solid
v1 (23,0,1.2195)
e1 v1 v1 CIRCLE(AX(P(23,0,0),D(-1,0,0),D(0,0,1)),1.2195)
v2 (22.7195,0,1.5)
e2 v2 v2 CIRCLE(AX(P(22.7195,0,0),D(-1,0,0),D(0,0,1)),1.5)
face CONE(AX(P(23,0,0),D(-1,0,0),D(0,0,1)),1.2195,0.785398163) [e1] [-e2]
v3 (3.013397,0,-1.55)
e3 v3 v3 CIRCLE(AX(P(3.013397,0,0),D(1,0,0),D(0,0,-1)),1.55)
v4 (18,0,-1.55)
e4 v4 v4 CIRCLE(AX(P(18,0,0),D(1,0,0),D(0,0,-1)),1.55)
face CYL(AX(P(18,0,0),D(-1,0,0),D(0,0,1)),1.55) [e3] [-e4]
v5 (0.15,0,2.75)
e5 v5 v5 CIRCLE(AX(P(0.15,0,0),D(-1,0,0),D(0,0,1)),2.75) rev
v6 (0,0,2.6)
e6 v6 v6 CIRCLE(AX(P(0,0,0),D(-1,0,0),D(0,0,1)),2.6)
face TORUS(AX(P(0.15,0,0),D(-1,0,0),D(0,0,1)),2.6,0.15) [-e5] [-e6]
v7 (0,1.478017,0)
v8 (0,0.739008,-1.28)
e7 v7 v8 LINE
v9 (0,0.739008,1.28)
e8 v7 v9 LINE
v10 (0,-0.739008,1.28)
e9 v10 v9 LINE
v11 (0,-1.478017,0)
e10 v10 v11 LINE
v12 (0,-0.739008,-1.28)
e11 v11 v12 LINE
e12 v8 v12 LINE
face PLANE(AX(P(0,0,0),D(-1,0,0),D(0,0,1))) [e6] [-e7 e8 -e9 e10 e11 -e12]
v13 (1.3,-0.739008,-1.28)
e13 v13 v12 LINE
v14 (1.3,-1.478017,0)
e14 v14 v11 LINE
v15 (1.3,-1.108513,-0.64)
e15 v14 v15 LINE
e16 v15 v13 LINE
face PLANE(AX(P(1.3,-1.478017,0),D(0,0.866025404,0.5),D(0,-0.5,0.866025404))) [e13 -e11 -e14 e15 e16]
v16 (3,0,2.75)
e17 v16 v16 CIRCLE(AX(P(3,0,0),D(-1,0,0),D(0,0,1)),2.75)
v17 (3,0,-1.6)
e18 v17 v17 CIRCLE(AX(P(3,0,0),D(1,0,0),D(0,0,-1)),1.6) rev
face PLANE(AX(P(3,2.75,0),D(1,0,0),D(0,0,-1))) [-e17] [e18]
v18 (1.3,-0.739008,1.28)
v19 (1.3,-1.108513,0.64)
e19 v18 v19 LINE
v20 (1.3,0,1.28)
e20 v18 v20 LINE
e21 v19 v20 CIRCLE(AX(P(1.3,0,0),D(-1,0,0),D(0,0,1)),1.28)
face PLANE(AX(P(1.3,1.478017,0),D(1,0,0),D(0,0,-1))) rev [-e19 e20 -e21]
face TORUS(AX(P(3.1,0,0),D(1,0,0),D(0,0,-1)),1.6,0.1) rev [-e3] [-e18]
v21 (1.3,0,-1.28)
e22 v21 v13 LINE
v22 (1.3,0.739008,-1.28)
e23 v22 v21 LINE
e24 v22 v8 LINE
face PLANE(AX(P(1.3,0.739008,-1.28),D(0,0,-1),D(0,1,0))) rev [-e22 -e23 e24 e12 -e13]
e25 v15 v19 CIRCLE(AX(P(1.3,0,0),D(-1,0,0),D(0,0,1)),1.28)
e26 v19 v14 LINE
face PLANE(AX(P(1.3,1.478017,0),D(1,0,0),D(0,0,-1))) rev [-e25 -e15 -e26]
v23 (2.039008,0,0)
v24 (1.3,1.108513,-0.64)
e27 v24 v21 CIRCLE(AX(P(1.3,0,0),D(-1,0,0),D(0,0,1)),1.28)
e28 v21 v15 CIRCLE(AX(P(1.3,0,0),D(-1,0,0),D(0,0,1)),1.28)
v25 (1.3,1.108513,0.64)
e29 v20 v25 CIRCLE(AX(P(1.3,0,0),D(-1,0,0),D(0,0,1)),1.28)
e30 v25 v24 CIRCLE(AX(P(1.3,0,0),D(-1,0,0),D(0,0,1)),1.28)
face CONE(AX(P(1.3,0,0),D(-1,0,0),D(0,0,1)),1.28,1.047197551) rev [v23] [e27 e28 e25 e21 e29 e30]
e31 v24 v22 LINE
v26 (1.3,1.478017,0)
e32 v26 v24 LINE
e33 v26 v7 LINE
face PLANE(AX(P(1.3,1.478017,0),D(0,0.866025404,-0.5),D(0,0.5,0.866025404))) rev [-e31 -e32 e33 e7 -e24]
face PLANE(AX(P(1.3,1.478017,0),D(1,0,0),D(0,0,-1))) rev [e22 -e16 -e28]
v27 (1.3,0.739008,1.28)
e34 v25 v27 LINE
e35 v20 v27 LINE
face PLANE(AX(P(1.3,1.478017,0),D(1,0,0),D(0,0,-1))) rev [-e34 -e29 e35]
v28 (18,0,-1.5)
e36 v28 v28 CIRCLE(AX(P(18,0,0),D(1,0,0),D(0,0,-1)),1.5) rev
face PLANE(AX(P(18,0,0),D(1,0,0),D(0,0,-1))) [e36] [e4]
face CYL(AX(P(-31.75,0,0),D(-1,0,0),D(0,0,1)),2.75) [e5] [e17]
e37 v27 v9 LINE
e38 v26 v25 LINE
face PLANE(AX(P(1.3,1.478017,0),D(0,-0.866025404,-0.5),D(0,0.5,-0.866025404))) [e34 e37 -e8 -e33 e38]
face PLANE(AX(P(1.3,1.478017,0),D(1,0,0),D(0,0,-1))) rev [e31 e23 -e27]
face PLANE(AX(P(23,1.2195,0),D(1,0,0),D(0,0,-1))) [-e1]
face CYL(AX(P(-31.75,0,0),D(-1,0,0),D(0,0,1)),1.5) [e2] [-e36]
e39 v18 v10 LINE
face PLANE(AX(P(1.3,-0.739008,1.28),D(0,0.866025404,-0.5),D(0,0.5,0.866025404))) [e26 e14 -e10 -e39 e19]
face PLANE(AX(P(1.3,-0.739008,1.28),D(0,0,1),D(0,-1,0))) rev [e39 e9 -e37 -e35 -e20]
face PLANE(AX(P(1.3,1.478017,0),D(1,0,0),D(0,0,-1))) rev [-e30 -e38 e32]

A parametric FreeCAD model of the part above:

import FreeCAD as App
import Part
import Sketcher
from FreeCAD import Vector
Q = App.Units.Quantity


def edges_at(feature, points):
    """Names of the edges that pass closest to the given points."""
    edges = feature.Shape.Edges
    near = lambda p: min(range(len(edges)), key=lambda i: edges[i].distToShape(Part.Vertex(*p))[0])
    return sorted({f"Edge{near(p) + 1}" for p in points})


def add_polygon(sketch, points):
    """Adds a closed chain of lines whose ends are joined by coincident constraints."""
    first, n = sketch.GeometryCount, len(points)
    for a, b in zip(points, points[1:] + points[:1]):
        sketch.addGeometry(Part.LineSegment(App.Vector(*a, 0), App.Vector(*b, 0)), False)
    for i in range(n):
        sketch.addConstraint(Sketcher.Constraint("Coincident", first + i, 2, first + (i + 1) % n, 1))

doc = App.newDocument("Part")
params = doc.addObject("Spreadsheet::Sheet", "Params")
for row, (alias, value) in enumerate([
    ("sketch1_width", "23 mm"),
    ("sketch1_width2", "3 mm"),
    ("sketch1_height", "2.75 mm"),
    ("sketch1_height2", "1.25 mm"),
    ("revolution_angle", "360 deg"),
    ("fillet_radius", "0.1 mm"),
    ("fillet2_radius", "0.15 mm"),
    ("sketch2_width", "1.3 mm"),
    ("sketch2_height", "1.28 mm"),
    ("groove_angle", "360 deg"),
    ("pocket1_length", "1.3 mm"),
    ("sketch4_diameter", "3.1 mm"),
    ("pad1_length", "15 mm"),
], start=1):
    params.set(f"A{row}", alias)
    params.set(f"B{row}", "=" + value)
    params.setAlias(f"B{row}", alias)

body = doc.addObject("PartDesign::Body", "Body")

sketch1 = body.newObject("Sketcher::SketchObject", "Sketch")
sketch1.AttachmentSupport = (doc.getObject("XY_Plane"), [""])
sketch1.MapMode = "FlatFace"
add_polygon(sketch1, [(0, 2.75), (0, 0), (23, 0), (23, 1.22), (22.72, 1.5), (3, 1.5), (3, 2.75)])
sketch1.addConstraint([
    Sketcher.Constraint("Vertical", 0),
    Sketcher.Constraint("Horizontal", 1),
    Sketcher.Constraint("Vertical", 2),
    Sketcher.Constraint("Horizontal", 4),
    Sketcher.Constraint("Vertical", 5),
    Sketcher.Constraint("Horizontal", 6),
    Sketcher.Constraint("Coincident", 0, 2, -1, 1),
    Sketcher.Constraint("DistanceX", 1, 1, 1, 2, 23.0),
    Sketcher.Constraint("DistanceX", 6, 2, 6, 1, 3.0),
    Sketcher.Constraint("Angle", 3, Q("135 deg")),
    Sketcher.Constraint("DistanceY", 0, 2, 0, 1, 2.75),
    Sketcher.Constraint("DistanceY", 5, 1, 5, 2, 1.25),
    Sketcher.Constraint("DistanceX", 4, 2, 4, 1, 19.7195),
])
sketch1.setExpression("Constraints[14]", "Params.sketch1_width")
sketch1.setExpression("Constraints[15]", "Params.sketch1_width2")
sketch1.setExpression("Constraints[17]", "Params.sketch1_height")
sketch1.setExpression("Constraints[18]", "Params.sketch1_height2")
revolution = body.newObject("PartDesign::Revolution", "Revolution")
revolution.Profile = sketch1
revolution.ReferenceAxis = (sketch1, ["H_Axis"])
revolution.setExpression("Angle", "Params.revolution_angle")
doc.recompute()

fillet = body.newObject("PartDesign::Fillet", "Fillet")
fillet.Base = (revolution, edges_at(revolution, [(3, -1.5, 0)]))
fillet.setExpression("Radius", "Params.fillet_radius")
doc.recompute()

fillet2 = body.newObject("PartDesign::Fillet", "Fillet001")
fillet2.Base = (fillet, edges_at(fillet, [(0, -2.75, 0)]))
fillet2.setExpression("Radius", "Params.fillet2_radius")

sketch2 = body.newObject("Sketcher::SketchObject", "Sketch001")
sketch2.AttachmentSupport = (doc.getObject("XY_Plane"), [""])
sketch2.MapMode = "FlatFace"
add_polygon(sketch2, [(1.3, 1.3), (0, 1.3), (0, 0), (2, 0)])
sketch2.addConstraint([
    Sketcher.Constraint("Horizontal", 0),
    Sketcher.Constraint("Vertical", 1),
    Sketcher.Constraint("Horizontal", 2),
    Sketcher.Constraint("Coincident", 1, 2, -1, 1),
    Sketcher.Constraint("Angle", 3, Q("120 deg")),
    Sketcher.Constraint("DistanceX", 0, 2, 0, 1, 1.3),
    Sketcher.Constraint("DistanceY", 1, 2, 1, 1, 1.28),
])
sketch2.setExpression("Constraints[9]", "Params.sketch2_width")
sketch2.setExpression("Constraints[10]", "Params.sketch2_height")
groove = body.newObject("PartDesign::Groove", "Groove")
groove.Profile = sketch2
groove.ReferenceAxis = (sketch2, ["H_Axis"])
groove.setExpression("Angle", "Params.groove_angle")

sketch3 = body.newObject("Sketcher::SketchObject", "Sketch002")
sketch3.AttachmentSupport = (doc.getObject("YZ_Plane"), [""])
sketch3.MapMode = "FlatFace"
add_polygon(sketch3, [(1.5, 0), (0.7, -1.3), (-0.7, -1.3), (-1.5, 0), (-0.7, 1.3), (0.7, 1.3)])
sketch3.addConstraint([
    Sketcher.Constraint("Horizontal", 1),
    Sketcher.Constraint("Horizontal", 4),
    Sketcher.Constraint("Symmetric", 0, 2, 3, 2, -1, 1),
    Sketcher.Constraint("Symmetric", 2, 2, 5, 2, -1, 1),
    Sketcher.Constraint("PointOnObject", 2, 2, -1),
    Sketcher.Constraint("Parallel", 2, 5),
    Sketcher.Constraint("Vertical", 1, 2, 3, 2),
    Sketcher.Constraint("Angle", 0, Q("-120 deg")),
    Sketcher.Constraint("DistanceY", 0, 2, -1, 1, 1.28),
    Sketcher.Constraint("DistanceX", 1, 2, 1, 1, 1.478017),
])
pocket1 = body.newObject("PartDesign::Pocket", "Pocket")
pocket1.Profile = sketch3
pocket1.setExpression("Length", "Params.pocket1_length")
pocket1.Reversed = True

sketch4 = body.newObject("Sketcher::SketchObject", "Sketch003")
sketch4.AttachmentSupport = (doc.getObject("YZ_Plane"), [""])
sketch4.MapMode = "FlatFace"
sketch4.AttachmentOffset = App.Placement(Vector(0, 0, 3), App.Rotation())
sketch4.addGeometry(Part.Circle(Vector(0, 0, 0), Vector(0, 0, 1), 1.6), False)
sketch4.addConstraint([
    Sketcher.Constraint("Coincident", 0, 3, -1, 1),
    Sketcher.Constraint("Diameter", 0, 3.1),
])
sketch4.setExpression("Constraints[1]", "Params.sketch4_diameter")
pad1 = body.newObject("PartDesign::Pad", "Pad")
pad1.Profile = sketch4
pad1.setExpression("Length", "Params.pad1_length")

doc.recompute()
